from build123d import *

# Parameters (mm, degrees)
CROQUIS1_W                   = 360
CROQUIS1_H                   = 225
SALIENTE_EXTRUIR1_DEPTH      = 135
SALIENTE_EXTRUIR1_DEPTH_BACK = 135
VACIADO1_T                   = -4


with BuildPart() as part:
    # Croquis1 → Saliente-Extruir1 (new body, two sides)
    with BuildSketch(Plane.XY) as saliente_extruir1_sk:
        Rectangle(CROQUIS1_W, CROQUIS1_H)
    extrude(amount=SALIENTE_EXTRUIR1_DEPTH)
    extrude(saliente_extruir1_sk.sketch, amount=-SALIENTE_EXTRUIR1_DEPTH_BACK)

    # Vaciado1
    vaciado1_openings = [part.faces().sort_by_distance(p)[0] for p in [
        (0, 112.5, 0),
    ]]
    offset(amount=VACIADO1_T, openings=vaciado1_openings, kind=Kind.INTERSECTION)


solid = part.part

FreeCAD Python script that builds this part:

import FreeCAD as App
import Part
import Sketcher


def faces_at(feature, points):
    """Names of the faces that lie closest to the given points."""
    faces = feature.Shape.Faces
    near = lambda p: min(range(len(faces)), key=lambda i: faces[i].distToShape(Part.Vertex(*p))[0])
    return sorted({f"Face{near(p) + 1}" for p in points})

doc = App.newDocument("Part")
body = doc.addObject("PartDesign::Body", "Body")

# Sketch on XY plane
sketch1 = body.newObject("Sketcher::SketchObject", "Sketch")
sketch1.AttachmentSupport = (doc.getObject("XY_Plane"), [""])
sketch1.MapMode = "FlatFace"
sketch1.addGeometry(Part.LineSegment(App.Vector(-180, 112.5, 0), App.Vector(-180, -112.5, 0)), False)
sketch1.addGeometry(Part.LineSegment(App.Vector(-180, -112.5, 0), App.Vector(180, -112.5, 0)), False)
sketch1.addGeometry(Part.LineSegment(App.Vector(180, -112.5, 0), App.Vector(180, 112.5, 0)), False)
sketch1.addGeometry(Part.LineSegment(App.Vector(180, 112.5, 0), App.Vector(-180, 112.5, 0)), False)
sketch1.addConstraint(Sketcher.Constraint("Coincident", 0, 2, 1, 1))
sketch1.addConstraint(Sketcher.Constraint("Coincident", 1, 2, 2, 1))
sketch1.addConstraint(Sketcher.Constraint("Coincident", 2, 2, 3, 1))
sketch1.addConstraint(Sketcher.Constraint("Coincident", 3, 2, 0, 1))
sketch1.addConstraint(Sketcher.Constraint("Vertical", 0))
sketch1.addConstraint(Sketcher.Constraint("Horizontal", 1))
sketch1.addConstraint(Sketcher.Constraint("Vertical", 2))
sketch1.addConstraint(Sketcher.Constraint("Horizontal", 3))
sketch1.addConstraint(Sketcher.Constraint("Symmetric", 0, 2, 2, 2, -1, 1))
sketch1.addConstraint(Sketcher.Constraint("DistanceX", 1, 1, 1, 2, 360.0))
sketch1.addConstraint(Sketcher.Constraint("DistanceY", 0, 2, 0, 1, 225.0))
pad1 = body.newObject("PartDesign::Pad", "Pad")
pad1.Profile = sketch1
pad1.Type = "TwoLengths"
pad1.Length = 135
pad1.Length2 = 135
doc.recompute()

thickness = body.newObject("PartDesign::Thickness", "Thickness")
thickness.Base = (pad1, faces_at(pad1, [(0, 112.5, 0)]))
thickness.Value = 4
thickness.Reversed = True
thickness.Join = "Intersection"

doc.recompute()
